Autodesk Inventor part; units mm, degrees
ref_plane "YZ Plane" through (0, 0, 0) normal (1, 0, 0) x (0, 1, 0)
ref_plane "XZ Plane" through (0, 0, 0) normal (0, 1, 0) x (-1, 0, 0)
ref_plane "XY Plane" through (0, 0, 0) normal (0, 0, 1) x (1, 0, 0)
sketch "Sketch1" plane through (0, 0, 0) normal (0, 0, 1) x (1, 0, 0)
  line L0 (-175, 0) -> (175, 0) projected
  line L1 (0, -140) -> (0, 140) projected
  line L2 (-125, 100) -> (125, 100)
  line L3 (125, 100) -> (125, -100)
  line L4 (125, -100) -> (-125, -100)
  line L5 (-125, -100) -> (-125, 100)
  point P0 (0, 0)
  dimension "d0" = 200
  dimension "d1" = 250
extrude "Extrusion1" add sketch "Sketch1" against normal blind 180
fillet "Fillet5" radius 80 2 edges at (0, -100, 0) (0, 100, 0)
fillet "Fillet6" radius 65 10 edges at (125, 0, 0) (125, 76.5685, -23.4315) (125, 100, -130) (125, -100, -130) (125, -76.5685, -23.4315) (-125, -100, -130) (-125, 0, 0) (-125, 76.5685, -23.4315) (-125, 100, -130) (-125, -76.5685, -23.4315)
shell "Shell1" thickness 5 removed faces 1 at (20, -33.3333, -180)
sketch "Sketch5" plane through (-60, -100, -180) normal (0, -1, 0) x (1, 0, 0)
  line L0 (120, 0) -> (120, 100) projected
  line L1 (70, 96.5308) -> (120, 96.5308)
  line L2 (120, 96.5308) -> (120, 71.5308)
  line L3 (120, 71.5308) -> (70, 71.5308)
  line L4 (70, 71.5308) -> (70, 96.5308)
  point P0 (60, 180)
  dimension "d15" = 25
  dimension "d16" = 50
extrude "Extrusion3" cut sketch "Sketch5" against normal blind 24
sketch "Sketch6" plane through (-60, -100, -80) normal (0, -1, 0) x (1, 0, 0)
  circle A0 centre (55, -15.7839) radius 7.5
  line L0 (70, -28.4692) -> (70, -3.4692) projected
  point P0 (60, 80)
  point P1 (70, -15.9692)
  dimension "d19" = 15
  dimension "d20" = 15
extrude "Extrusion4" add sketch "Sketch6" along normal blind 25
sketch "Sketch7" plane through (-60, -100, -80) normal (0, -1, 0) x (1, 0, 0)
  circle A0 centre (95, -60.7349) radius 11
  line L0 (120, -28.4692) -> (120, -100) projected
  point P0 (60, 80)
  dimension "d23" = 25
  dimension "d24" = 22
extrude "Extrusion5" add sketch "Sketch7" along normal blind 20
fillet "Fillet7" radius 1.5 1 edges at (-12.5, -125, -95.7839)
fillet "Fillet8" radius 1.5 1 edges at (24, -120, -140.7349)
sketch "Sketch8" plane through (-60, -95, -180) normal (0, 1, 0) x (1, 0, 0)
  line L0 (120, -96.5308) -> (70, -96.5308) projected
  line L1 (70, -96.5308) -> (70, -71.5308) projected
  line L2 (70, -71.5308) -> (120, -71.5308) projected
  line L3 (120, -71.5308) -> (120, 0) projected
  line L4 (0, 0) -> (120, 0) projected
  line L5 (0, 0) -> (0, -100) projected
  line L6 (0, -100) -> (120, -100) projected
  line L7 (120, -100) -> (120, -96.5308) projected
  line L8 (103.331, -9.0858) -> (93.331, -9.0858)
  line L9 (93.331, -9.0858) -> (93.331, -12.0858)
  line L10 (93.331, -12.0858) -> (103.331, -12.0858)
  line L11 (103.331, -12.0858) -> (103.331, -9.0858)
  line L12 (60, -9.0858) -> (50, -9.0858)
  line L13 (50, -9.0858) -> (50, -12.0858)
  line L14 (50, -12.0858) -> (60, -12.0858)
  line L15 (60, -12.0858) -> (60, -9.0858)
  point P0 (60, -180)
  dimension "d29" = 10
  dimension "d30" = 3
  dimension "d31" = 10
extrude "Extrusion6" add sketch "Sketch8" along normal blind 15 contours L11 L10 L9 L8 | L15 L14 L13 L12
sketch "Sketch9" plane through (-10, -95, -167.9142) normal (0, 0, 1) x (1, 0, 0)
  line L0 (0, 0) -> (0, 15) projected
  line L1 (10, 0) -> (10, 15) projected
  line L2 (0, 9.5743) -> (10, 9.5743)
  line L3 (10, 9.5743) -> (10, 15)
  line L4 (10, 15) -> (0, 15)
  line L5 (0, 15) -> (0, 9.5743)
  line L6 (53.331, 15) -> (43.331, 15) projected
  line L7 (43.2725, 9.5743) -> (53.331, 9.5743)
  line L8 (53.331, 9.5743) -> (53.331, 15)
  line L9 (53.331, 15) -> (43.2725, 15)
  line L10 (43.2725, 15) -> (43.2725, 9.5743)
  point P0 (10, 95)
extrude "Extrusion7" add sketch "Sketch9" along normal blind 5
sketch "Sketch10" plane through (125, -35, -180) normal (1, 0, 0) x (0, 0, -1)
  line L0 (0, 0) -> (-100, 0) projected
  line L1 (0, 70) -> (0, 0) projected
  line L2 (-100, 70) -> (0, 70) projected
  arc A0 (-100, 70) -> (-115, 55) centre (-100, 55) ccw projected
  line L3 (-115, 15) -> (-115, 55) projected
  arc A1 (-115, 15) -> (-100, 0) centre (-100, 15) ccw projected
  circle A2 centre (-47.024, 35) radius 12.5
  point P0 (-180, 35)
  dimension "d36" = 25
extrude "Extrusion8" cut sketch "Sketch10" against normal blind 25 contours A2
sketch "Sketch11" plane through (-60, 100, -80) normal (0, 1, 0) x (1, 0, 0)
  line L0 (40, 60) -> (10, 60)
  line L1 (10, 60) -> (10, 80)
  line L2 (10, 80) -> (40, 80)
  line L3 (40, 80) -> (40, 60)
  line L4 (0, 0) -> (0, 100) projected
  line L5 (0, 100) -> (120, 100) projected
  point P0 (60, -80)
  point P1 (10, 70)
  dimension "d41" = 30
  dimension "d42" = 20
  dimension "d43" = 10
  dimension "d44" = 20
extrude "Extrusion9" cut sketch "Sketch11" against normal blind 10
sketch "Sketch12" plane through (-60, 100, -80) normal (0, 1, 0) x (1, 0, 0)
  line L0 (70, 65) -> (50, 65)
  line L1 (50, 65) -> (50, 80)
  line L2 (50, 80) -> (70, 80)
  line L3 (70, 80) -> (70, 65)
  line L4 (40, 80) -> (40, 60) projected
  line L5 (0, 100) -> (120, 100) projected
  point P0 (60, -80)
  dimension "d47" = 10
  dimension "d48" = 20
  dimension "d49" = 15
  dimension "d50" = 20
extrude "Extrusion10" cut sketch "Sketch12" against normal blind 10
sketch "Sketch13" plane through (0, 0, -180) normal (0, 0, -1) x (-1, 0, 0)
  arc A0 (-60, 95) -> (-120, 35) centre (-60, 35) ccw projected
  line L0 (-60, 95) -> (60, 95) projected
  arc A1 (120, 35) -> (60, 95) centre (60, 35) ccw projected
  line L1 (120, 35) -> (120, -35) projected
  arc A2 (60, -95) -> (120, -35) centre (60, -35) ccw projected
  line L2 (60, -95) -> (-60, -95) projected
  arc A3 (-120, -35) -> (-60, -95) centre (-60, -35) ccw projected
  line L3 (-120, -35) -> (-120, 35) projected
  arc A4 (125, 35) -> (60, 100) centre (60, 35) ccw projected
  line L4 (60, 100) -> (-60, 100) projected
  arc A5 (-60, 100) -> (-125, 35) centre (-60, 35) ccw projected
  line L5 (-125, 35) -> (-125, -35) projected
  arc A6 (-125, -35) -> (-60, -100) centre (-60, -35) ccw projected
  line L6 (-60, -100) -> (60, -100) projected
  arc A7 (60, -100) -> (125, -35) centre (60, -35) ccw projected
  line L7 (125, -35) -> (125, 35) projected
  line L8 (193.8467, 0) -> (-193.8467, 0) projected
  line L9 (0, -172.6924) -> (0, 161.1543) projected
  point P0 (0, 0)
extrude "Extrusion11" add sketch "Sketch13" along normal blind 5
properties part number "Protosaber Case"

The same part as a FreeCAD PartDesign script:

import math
import FreeCAD as App
import Part
import Sketcher

V = App.Vector


def edges_at(feature, points):
    """Names of the edges that pass closest to the given points."""
    edges = feature.Shape.Edges
    near = lambda p: min(range(len(edges)), key=lambda i: edges[i].distToShape(Part.Vertex(*p))[0])
    return sorted({f"Edge{near(p) + 1}" for p in points})


def faces_at(feature, points):
    """Names of the faces that lie closest to the given points."""
    faces = feature.Shape.Faces
    near = lambda p: min(range(len(faces)), key=lambda i: faces[i].distToShape(Part.Vertex(*p))[0])
    return sorted({f"Face{near(p) + 1}" for p in points})

doc = App.newDocument("Part")
body = doc.addObject("PartDesign::Body", "Body")

sketch1 = body.newObject("Sketcher::SketchObject", "Sketch")
sketch1.AttachmentSupport = (doc.getObject("XY_Plane"), [""])
sketch1.MapMode = "FlatFace"
sketch1.addGeometry([
    Part.LineSegment(V(-125, 100, 0), V(-125, -100, 0)),
    Part.LineSegment(V(-125, -100, 0), V(125, -100, 0)),
    Part.LineSegment(V(125, -100, 0), V(125, 100, 0)),
    Part.LineSegment(V(125, 100, 0), V(-125, 100, 0)),
], False)
sketch1.addConstraint([
    Sketcher.Constraint("Coincident", 0, 2, 1, 1),
    Sketcher.Constraint("Coincident", 1, 2, 2, 1),
    Sketcher.Constraint("Coincident", 2, 2, 3, 1),
    Sketcher.Constraint("Coincident", 3, 2, 0, 1),
    Sketcher.Constraint("Vertical", 0),
    Sketcher.Constraint("Horizontal", 1),
    Sketcher.Constraint("Vertical", 2),
    Sketcher.Constraint("Horizontal", 3),
    Sketcher.Constraint("Symmetric", 0, 2, 2, 2, -1, 1),
    Sketcher.Constraint("DistanceX", 1, 1, 1, 2, 250.0),
    Sketcher.Constraint("DistanceY", 0, 2, 0, 1, 200.0),
])
pad1 = body.newObject("PartDesign::Pad", "Pad")
pad1.Profile = sketch1
pad1.Length = 180
pad1.Reversed = True
doc.recompute()

fillet = body.newObject("PartDesign::Fillet", "Fillet")
fillet.Base = (pad1, edges_at(pad1, [(0, -100, 0), (0, 100, 0)]))
fillet.Radius = 80
doc.recompute()

fillet2 = body.newObject("PartDesign::Fillet", "Fillet001")
fillet2.Base = (fillet, edges_at(fillet, [
    (125, 0, 0),
    (125, 76.569, -23.431),
    (125, 100, -130),
    (125, -100, -130),
    (125, -76.569, -23.431),
    (-125, -100, -130),
    (-125, 0, 0),
    (-125, 76.569, -23.431),
    (-125, 100, -130),
    (-125, -76.569, -23.431),
]))
fillet2.Radius = 65
doc.recompute()

thickness = body.newObject("PartDesign::Thickness", "Thickness")
thickness.Base = (fillet2, faces_at(fillet2, [(20, -33.333, -180)]))
thickness.Value = 5
thickness.Reversed = True
thickness.Join = "Intersection"

sketch2 = body.newObject("Sketcher::SketchObject", "Sketch001")
sketch2.AttachmentSupport = (doc.getObject("XZ_Plane"), [""])
sketch2.MapMode = "FlatFace"
sketch2.AttachmentOffset = App.Placement(V(0, 0, 100), App.Rotation())
sketch2.addGeometry([
    Part.LineSegment(V(10, -108, 0), V(60, -108, 0)),
    Part.LineSegment(V(60, -108, 0), V(60, -83, 0)),
    Part.LineSegment(V(60, -83, 0), V(10, -83, 0)),
    Part.LineSegment(V(10, -83, 0), V(10, -108, 0)),
], False)
sketch2.addConstraint([
    Sketcher.Constraint("Coincident", 0, 2, 1, 1),
    Sketcher.Constraint("Coincident", 1, 2, 2, 1),
    Sketcher.Constraint("Coincident", 2, 2, 3, 1),
    Sketcher.Constraint("Coincident", 3, 2, 0, 1),
    Sketcher.Constraint("Horizontal", 0),
    Sketcher.Constraint("Vertical", 1),
    Sketcher.Constraint("Horizontal", 2),
    Sketcher.Constraint("Vertical", 3),
    Sketcher.Constraint("DistanceX", 0, 1, 0, 2, 50.0),
    Sketcher.Constraint("DistanceY", 1, 1, 1, 2, 25.0),
    Sketcher.Constraint("DistanceX", -1, 1, 0, 2, 60.0),
    Sketcher.Constraint("DistanceY", 0, 2, -1, 1, 108.4692),
])
pocket1 = body.newObject("PartDesign::Pocket", "Pocket")
pocket1.Profile = sketch2
pocket1.Length = 24

sketch3 = body.newObject("Sketcher::SketchObject", "Sketch002")
sketch3.AttachmentSupport = (doc.getObject("XZ_Plane"), [""])
sketch3.MapMode = "FlatFace"
sketch3.AttachmentOffset = App.Placement(V(0, 0, 100), App.Rotation())
sketch3.addGeometry(Part.Circle(V(-5, -96, 0), V(0, 0, 1), 8), False)
sketch3.addConstraint([
    Sketcher.Constraint("Diameter", 0, 15.0),
    Sketcher.Constraint("DistanceX", 0, 3, -1, 1, 5.0),
    Sketcher.Constraint("DistanceY", 0, 3, -1, 1, 95.784),
])
pad2 = body.newObject("PartDesign::Pad", "Pad001")
pad2.Profile = sketch3
pad2.Length = 25

sketch4 = body.newObject("Sketcher::SketchObject", "Sketch003")
sketch4.AttachmentSupport = (doc.getObject("XZ_Plane"), [""])
sketch4.MapMode = "FlatFace"
sketch4.AttachmentOffset = App.Placement(V(0, 0, 100), App.Rotation())
sketch4.addGeometry(Part.Circle(V(35, -141, 0), V(0, 0, 1), 11), False)
sketch4.addConstraint([
    Sketcher.Constraint("Diameter", 0, 22.0),
    Sketcher.Constraint("DistanceX", -1, 1, 0, 3, 35.0),
    Sketcher.Constraint("DistanceY", 0, 3, -1, 1, 140.735),
])
pad3 = body.newObject("PartDesign::Pad", "Pad002")
pad3.Profile = sketch4
pad3.Length = 20
doc.recompute()

fillet3 = body.newObject("PartDesign::Fillet", "Fillet002")
fillet3.Base = (pad3, edges_at(pad3, [(-12.5, -125, -95.784)]))
fillet3.Radius = 1.5
doc.recompute()

fillet4 = body.newObject("PartDesign::Fillet", "Fillet003")
fillet4.Base = (fillet3, edges_at(fillet3, [(24, -120, -140.735)]))
fillet4.Radius = 1.5

sketch5 = body.newObject("Sketcher::SketchObject", "Sketch004")
sketch5.AttachmentSupport = (doc.getObject("XZ_Plane"), [""])
sketch5.MapMode = "FlatFace"
sketch5.AttachmentOffset = App.Placement(V(0, 0, 95), App.Rotation())
sketch5.addGeometry([
    Part.LineSegment(V(43.3, -167.9, 0), V(43.3, -170.9, 0)),
    Part.LineSegment(V(43.3, -170.9, 0), V(33.3, -170.9, 0)),
    Part.LineSegment(V(33.3, -170.9, 0), V(33.3, -167.9, 0)),
    Part.LineSegment(V(33.3, -167.9, 0), V(43.3, -167.9, 0)),
    Part.LineSegment(V(0, -167.9, 0), V(0, -170.9, 0)),
    Part.LineSegment(V(0, -170.9, 0), V(-10, -170.9, 0)),
    Part.LineSegment(V(-10, -170.9, 0), V(-10, -167.9, 0)),
    Part.LineSegment(V(-10, -167.9, 0), V(0, -167.9, 0)),
], False)
sketch5.addConstraint([
    Sketcher.Constraint("Coincident", 0, 2, 1, 1),
    Sketcher.Constraint("Coincident", 1, 2, 2, 1),
    Sketcher.Constraint("Coincident", 2, 2, 3, 1),
    Sketcher.Constraint("Coincident", 3, 2, 0, 1),
    Sketcher.Constraint("Coincident", 4, 2, 5, 1),
    Sketcher.Constraint("Coincident", 5, 2, 6, 1),
    Sketcher.Constraint("Coincident", 6, 2, 7, 1),
    Sketcher.Constraint("Coincident", 7, 2, 4, 1),
    Sketcher.Constraint("Vertical", 0),
    Sketcher.Constraint("Horizontal", 1),
    Sketcher.Constraint("Vertical", 2),
    Sketcher.Constraint("Horizontal", 3),
    Sketcher.Constraint("Vertical", 4),
    Sketcher.Constraint("Horizontal", 5),
    Sketcher.Constraint("Vertical", 6),
    Sketcher.Constraint("Horizontal", 7),
    Sketcher.Constraint("PointOnObject", 4, 2, -2),
    Sketcher.Constraint("Horizontal", 1, 2, 4, 2),
    Sketcher.Constraint("Horizontal", 3, 2, 6, 2),
    Sketcher.Constraint("Equal", 3, 5),
    Sketcher.Constraint("DistanceX", 1, 2, 1, 1, 10.0),
    Sketcher.Constraint("DistanceY", 0, 2, 0, 1, 3.0),
    Sketcher.Constraint("DistanceX", -1, 1, 0, 2, 43.331),
    Sketcher.Constraint("DistanceY", 0, 2, -1, 1, 170.9142),
])
pad4 = body.newObject("PartDesign::Pad", "Pad003")
pad4.Profile = sketch5
pad4.Length = 15
pad4.Reversed = True

sketch6 = body.newObject("Sketcher::SketchObject", "Sketch005")
sketch6.AttachmentSupport = (doc.getObject("XY_Plane"), [""])
sketch6.MapMode = "FlatFace"
sketch6.AttachmentOffset = App.Placement(V(0, 0, -167.9142), App.Rotation())
sketch6.addGeometry([
    Part.LineSegment(V(-10, -80, 0), V(-10, -85, 0)),
    Part.LineSegment(V(-10, -85, 0), V(0, -85, 0)),
    Part.LineSegment(V(0, -85, 0), V(0, -80, 0)),
    Part.LineSegment(V(0, -80, 0), V(-10, -80, 0)),
    Part.LineSegment(V(43, -85, 0), V(43, -80, 0)),
    Part.LineSegment(V(43, -80, 0), V(33, -80, 0)),
    Part.LineSegment(V(33, -80, 0), V(33, -85, 0)),
    Part.LineSegment(V(33, -85, 0), V(43, -85, 0)),
], False)
sketch6.addConstraint([
    Sketcher.Constraint("Coincident", 0, 2, 1, 1),
    Sketcher.Constraint("Coincident", 1, 2, 2, 1),
    Sketcher.Constraint("Coincident", 2, 2, 3, 1),
    Sketcher.Constraint("Coincident", 3, 2, 0, 1),
    Sketcher.Constraint("Coincident", 4, 2, 5, 1),
    Sketcher.Constraint("Coincident", 5, 2, 6, 1),
    Sketcher.Constraint("Coincident", 6, 2, 7, 1),
    Sketcher.Constraint("Coincident", 7, 2, 4, 1),
    Sketcher.Constraint("Vertical", 0),
    Sketcher.Constraint("Horizontal", 1),
    Sketcher.Constraint("Vertical", 2),
    Sketcher.Constraint("Horizontal", 3),
    Sketcher.Constraint("Vertical", 4),
    Sketcher.Constraint("Horizontal", 5),
    Sketcher.Constraint("Vertical", 6),
    Sketcher.Constraint("Horizontal", 7),
    Sketcher.Constraint("PointOnObject", 1, 2, -2),
    Sketcher.Constraint("Horizontal", 3, 2, 4, 2),
    Sketcher.Constraint("Horizontal", 1, 2, 6, 2),
    Sketcher.Constraint("DistanceX", 1, 1, 1, 2, 10.0),
    Sketcher.Constraint("DistanceY", 2, 2, -1, 1, 80.0),
    Sketcher.Constraint("DistanceX", 5, 2, 5, 1, 10.0585),
    Sketcher.Constraint("DistanceY", 0, 2, 0, 1, 5.4257),
    Sketcher.Constraint("DistanceX", -1, 1, 4, 2, 43.331),
])
pad5 = body.newObject("PartDesign::Pad", "Pad004")
pad5.Profile = sketch6
pad5.Length = 5

sketch7 = body.newObject("Sketcher::SketchObject", "Sketch006")
sketch7.AttachmentSupport = (doc.getObject("YZ_Plane"), [""])
sketch7.MapMode = "FlatFace"
sketch7.AttachmentOffset = App.Placement(V(0, 0, 125), App.Rotation())
sketch7.addGeometry(Part.Circle(V(0, -133, 0), V(0, 0, 1), 12), False)
sketch7.addConstraint([
    Sketcher.Constraint("PointOnObject", 0, 3, -2),
    Sketcher.Constraint("Diameter", 0, 25.0),
    Sketcher.Constraint("DistanceY", 0, 3, -1, 1, 132.976),
])
pocket2 = body.newObject("PartDesign::Pocket", "Pocket001")
pocket2.Profile = sketch7
pocket2.Length = 25

sketch8 = body.newObject("Sketcher::SketchObject", "Sketch007")
sketch8.AttachmentSupport = (doc.getObject("XZ_Plane"), [""])
sketch8.MapMode = "FlatFace"
sketch8.AttachmentOffset = App.Placement(V(0, 0, -100), App.Rotation())
sketch8.addGeometry([
    Part.LineSegment(V(-50, -140, 0), V(-20, -140, 0)),
    Part.LineSegment(V(-20, -140, 0), V(-20, -160, 0)),
    Part.LineSegment(V(-20, -160, 0), V(-50, -160, 0)),
    Part.LineSegment(V(-50, -160, 0), V(-50, -140, 0)),
], False)
sketch8.addConstraint([
    Sketcher.Constraint("Coincident", 0, 2, 1, 1),
    Sketcher.Constraint("Coincident", 1, 2, 2, 1),
    Sketcher.Constraint("Coincident", 2, 2, 3, 1),
    Sketcher.Constraint("Coincident", 3, 2, 0, 1),
    Sketcher.Constraint("Horizontal", 0),
    Sketcher.Constraint("Vertical", 1),
    Sketcher.Constraint("Horizontal", 2),
    Sketcher.Constraint("Vertical", 3),
    Sketcher.Constraint("DistanceX", 0, 1, 0, 2, 30.0),
    Sketcher.Constraint("DistanceY", 1, 2, 1, 1, 20.0),
    Sketcher.Constraint("DistanceX", 0, 2, -1, 1, 20.0),
    Sketcher.Constraint("DistanceY", 0, 2, -1, 1, 140.0),
])
pocket3 = body.newObject("PartDesign::Pocket", "Pocket002")
pocket3.Profile = sketch8
pocket3.Length = 10
pocket3.Reversed = True

sketch9 = body.newObject("Sketcher::SketchObject", "Sketch008")
sketch9.AttachmentSupport = (doc.getObject("XZ_Plane"), [""])
sketch9.MapMode = "FlatFace"
sketch9.AttachmentOffset = App.Placement(V(0, 0, -100), App.Rotation())
sketch9.addGeometry([
    Part.LineSegment(V(-10, -145, 0), V(10, -145, 0)),
    Part.LineSegment(V(10, -145, 0), V(10, -160, 0)),
    Part.LineSegment(V(10, -160, 0), V(-10, -160, 0)),
    Part.LineSegment(V(-10, -160, 0), V(-10, -145, 0)),
], False)
sketch9.addConstraint([
    Sketcher.Constraint("Coincident", 0, 2, 1, 1),
    Sketcher.Constraint("Coincident", 1, 2, 2, 1),
    Sketcher.Constraint("Coincident", 2, 2, 3, 1),
    Sketcher.Constraint("Coincident", 3, 2, 0, 1),
    Sketcher.Constraint("Horizontal", 0),
    Sketcher.Constraint("Vertical", 1),
    Sketcher.Constraint("Horizontal", 2),
    Sketcher.Constraint("Vertical", 3),
    Sketcher.Constraint("DistanceX", 0, 1, 0, 2, 20.0),
    Sketcher.Constraint("DistanceY", 1, 2, 1, 1, 15.0),
    Sketcher.Constraint("DistanceX", -1, 1, 0, 2, 10.0),
    Sketcher.Constraint("DistanceY", 0, 2, -1, 1, 145.0),
])
pocket4 = body.newObject("PartDesign::Pocket", "Pocket003")
pocket4.Profile = sketch9
pocket4.Length = 10
pocket4.Reversed = True

sketch10 = body.newObject("Sketcher::SketchObject", "Sketch009")
sketch10.AttachmentSupport = (doc.getObject("XY_Plane"), [""])
sketch10.MapMode = "FlatFace"
sketch10.AttachmentOffset = App.Placement(V(0, 0, -180), App.Rotation())
sketch10.addGeometry([
    Part.ArcOfCircle(Part.Circle(V(60, 35, 0), V(0, 0, 1), 65), math.radians(0), math.radians(90)),
    Part.LineSegment(V(125, 35, 0), V(125, -35, 0)),
    Part.ArcOfCircle(Part.Circle(V(60, -35, 0), V(0, 0, 1), 65), math.radians(-90), math.radians(0)),
    Part.LineSegment(V(60, -100, 0), V(-60, -100, 0)),
    Part.ArcOfCircle(Part.Circle(V(-60, -35, 0), V(0, 0, 1), 65), math.radians(180), math.radians(270)),
    Part.LineSegment(V(-125, -35, 0), V(-125, 35, 0)),
    Part.ArcOfCircle(Part.Circle(V(-60, 35, 0), V(0, 0, 1), 65), math.radians(90), math.radians(180)),
    Part.LineSegment(V(-60, 100, 0), V(60, 100, 0)),
], False)
sketch10.addConstraint([
    Sketcher.Constraint("Tangent", 0, 1, 1, 1),
    Sketcher.Constraint("Tangent", 1, 2, 2, 2),
    Sketcher.Constraint("Tangent", 2, 1, 3, 1),
    Sketcher.Constraint("Tangent", 3, 2, 4, 2),
    Sketcher.Constraint("Tangent", 4, 1, 5, 1),
    Sketcher.Constraint("Tangent", 5, 2, 6, 2),
    Sketcher.Constraint("Tangent", 6, 1, 7, 1),
    Sketcher.Constraint("Tangent", 7, 2, 0, 2),
    Sketcher.Constraint("Vertical", 1),
    Sketcher.Constraint("Horizontal", 3),
    Sketcher.Constraint("Vertical", 5),
    Sketcher.Constraint("Horizontal", 7),
    Sketcher.Constraint("Equal", 0, 2),
    Sketcher.Constraint("Equal", 2, 4),
    Sketcher.Constraint("Equal", 4, 6),
    Sketcher.Constraint("Symmetric", 0, 3, 4, 3, -1, 1),
    Sketcher.Constraint("Radius", 0, 65.0),
    Sketcher.Constraint("DistanceX", 3, 2, 3, 1, 120.0),
    Sketcher.Constraint("DistanceY", 1, 2, 1, 1, 70.0),
])
pad6 = body.newObject("PartDesign::Pad", "Pad005")
pad6.Profile = sketch10
pad6.Length = 5
pad6.Reversed = True

doc.recompute()
